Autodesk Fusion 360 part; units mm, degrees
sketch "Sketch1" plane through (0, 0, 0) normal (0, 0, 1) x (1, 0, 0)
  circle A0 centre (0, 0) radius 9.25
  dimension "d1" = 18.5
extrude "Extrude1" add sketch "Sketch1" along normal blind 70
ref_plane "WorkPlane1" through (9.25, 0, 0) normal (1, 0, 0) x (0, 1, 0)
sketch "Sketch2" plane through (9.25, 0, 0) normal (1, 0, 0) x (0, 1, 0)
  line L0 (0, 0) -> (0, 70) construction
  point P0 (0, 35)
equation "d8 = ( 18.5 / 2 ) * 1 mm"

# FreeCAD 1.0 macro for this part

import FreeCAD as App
import Part
import Sketcher

V = App.Vector

doc = App.newDocument("Part")
body = doc.addObject("PartDesign::Body", "Body")

sketch1 = body.newObject("Sketcher::SketchObject", "Sketch")
sketch1.AttachmentSupport = (doc.getObject("XY_Plane"), [""])
sketch1.MapMode = "FlatFace"
sketch1.addGeometry(Part.Circle(V(0, 0, 0), V(0, 0, 1), 9), False)
sketch1.addConstraint(Sketcher.Constraint("Coincident", 0, 3, -1, 1))
sketch1.addConstraint(Sketcher.Constraint("Diameter", 0, 18.5))
pad1 = body.newObject("PartDesign::Pad", "Pad")
pad1.Profile = sketch1
pad1.Length = 70

doc.recompute()
